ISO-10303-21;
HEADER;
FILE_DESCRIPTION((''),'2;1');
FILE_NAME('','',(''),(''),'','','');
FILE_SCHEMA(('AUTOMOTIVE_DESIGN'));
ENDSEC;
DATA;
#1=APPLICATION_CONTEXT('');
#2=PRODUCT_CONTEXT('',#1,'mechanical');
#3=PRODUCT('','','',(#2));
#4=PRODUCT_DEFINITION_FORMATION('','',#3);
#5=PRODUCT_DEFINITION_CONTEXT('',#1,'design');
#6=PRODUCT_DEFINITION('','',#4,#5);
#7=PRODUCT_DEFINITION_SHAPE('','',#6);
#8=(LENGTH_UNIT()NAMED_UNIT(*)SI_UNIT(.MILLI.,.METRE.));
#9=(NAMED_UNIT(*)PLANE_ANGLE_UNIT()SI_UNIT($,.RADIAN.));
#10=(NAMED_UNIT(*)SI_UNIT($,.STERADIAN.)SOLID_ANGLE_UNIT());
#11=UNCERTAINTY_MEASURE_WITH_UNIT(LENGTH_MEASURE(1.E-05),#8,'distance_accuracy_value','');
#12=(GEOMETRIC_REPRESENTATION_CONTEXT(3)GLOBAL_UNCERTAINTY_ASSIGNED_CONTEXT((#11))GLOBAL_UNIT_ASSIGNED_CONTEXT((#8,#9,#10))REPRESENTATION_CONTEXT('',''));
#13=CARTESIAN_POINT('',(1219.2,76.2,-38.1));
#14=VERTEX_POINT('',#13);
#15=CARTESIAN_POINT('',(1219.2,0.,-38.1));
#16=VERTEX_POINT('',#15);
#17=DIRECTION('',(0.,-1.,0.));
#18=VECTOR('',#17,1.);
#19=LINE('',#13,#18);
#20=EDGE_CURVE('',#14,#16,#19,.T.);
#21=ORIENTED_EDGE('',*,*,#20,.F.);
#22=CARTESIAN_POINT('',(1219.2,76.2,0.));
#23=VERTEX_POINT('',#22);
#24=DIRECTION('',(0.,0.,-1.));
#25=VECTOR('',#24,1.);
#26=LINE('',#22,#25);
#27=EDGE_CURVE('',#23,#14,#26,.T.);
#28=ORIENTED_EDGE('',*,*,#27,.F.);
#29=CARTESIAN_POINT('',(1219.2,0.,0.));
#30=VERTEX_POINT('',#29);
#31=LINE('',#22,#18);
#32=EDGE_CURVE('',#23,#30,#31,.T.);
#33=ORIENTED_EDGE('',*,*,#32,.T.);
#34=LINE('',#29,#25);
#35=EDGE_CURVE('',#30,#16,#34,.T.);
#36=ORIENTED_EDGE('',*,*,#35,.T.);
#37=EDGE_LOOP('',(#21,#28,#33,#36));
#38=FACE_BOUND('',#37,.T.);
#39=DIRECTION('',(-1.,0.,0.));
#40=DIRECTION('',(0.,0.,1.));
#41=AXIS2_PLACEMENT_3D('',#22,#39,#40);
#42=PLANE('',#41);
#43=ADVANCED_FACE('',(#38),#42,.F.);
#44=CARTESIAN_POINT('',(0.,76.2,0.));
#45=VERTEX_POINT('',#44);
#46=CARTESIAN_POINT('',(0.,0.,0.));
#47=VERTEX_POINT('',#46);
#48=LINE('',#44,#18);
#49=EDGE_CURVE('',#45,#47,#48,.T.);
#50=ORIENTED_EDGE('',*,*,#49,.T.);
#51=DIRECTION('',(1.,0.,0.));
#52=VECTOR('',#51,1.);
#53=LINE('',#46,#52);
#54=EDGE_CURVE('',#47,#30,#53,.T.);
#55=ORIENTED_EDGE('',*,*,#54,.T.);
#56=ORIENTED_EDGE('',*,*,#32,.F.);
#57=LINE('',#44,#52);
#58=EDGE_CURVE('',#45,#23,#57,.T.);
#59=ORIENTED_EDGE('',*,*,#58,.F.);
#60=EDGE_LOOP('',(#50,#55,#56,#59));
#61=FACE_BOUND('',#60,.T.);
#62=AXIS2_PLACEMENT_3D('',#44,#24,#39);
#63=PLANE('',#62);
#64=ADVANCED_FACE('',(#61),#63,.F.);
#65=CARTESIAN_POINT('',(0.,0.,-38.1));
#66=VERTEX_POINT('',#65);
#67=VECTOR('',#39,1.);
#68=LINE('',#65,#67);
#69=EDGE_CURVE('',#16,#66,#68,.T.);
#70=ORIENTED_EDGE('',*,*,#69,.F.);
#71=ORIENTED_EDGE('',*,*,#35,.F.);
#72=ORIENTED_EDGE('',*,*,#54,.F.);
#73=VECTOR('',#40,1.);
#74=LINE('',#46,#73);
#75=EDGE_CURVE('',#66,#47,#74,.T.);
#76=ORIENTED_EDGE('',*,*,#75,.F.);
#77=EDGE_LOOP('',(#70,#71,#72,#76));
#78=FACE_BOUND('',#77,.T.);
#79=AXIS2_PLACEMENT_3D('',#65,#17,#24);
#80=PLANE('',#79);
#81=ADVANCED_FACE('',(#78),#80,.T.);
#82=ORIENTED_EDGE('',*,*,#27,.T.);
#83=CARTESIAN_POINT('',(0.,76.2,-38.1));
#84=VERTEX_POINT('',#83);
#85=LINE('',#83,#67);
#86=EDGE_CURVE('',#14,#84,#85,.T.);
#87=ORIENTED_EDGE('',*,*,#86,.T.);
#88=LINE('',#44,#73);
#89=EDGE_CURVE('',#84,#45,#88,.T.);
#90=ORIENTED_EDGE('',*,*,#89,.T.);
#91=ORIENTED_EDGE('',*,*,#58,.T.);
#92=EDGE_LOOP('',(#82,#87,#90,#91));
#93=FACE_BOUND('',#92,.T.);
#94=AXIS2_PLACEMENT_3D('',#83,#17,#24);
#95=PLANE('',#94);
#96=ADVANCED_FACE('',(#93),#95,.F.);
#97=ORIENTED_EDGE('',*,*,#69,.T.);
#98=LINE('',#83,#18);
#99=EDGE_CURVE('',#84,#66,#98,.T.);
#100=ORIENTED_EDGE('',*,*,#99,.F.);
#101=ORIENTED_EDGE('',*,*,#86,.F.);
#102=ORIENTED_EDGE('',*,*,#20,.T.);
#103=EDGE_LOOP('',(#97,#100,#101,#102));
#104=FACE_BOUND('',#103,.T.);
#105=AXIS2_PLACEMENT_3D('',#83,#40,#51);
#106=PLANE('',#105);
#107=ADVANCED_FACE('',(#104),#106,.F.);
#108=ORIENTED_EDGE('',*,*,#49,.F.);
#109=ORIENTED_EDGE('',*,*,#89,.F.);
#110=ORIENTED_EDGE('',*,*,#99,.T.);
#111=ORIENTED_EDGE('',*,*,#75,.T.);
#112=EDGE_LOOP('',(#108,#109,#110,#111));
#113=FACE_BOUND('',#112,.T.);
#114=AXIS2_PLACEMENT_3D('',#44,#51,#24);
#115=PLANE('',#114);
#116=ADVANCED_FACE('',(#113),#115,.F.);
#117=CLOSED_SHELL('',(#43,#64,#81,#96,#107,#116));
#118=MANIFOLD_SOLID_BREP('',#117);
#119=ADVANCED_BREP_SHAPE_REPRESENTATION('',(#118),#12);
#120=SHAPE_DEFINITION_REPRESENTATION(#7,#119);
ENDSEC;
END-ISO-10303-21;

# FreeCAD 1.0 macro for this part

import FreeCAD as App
import Part
import Sketcher

V = App.Vector
Q = App.Units.Quantity

doc = App.newDocument("Part")
body = doc.addObject("PartDesign::Body", "Body")

sketch1 = body.newObject("Sketcher::SketchObject", "Sketch")
sketch1.AttachmentSupport = (doc.getObject("XZ_Plane"), [""])
sketch1.MapMode = "FlatFace"
sketch1.addGeometry([
    Part.LineSegment(V(0, -38, 0), V(0, 0, 0)),
    Part.LineSegment(V(0, 0, 0), V(1219, 0, 0)),
    Part.LineSegment(V(1219, 0, 0), V(1219, -38, 0)),
    Part.LineSegment(V(1219, -38, 0), V(0, -38, 0)),
], False)
sketch1.addConstraint([
    Sketcher.Constraint("Coincident", 0, 2, 1, 1),
    Sketcher.Constraint("Coincident", 1, 2, 2, 1),
    Sketcher.Constraint("Coincident", 2, 2, 3, 1),
    Sketcher.Constraint("Coincident", 3, 2, 0, 1),
    Sketcher.Constraint("Vertical", 0),
    Sketcher.Constraint("Horizontal", 1),
    Sketcher.Constraint("Vertical", 2),
    Sketcher.Constraint("Horizontal", 3),
    Sketcher.Constraint("Coincident", 0, 2, -1, 1),
    Sketcher.Constraint("DistanceX", 1, 1, 1, 2, Q("48 in")),
    Sketcher.Constraint("DistanceY", 0, 1, 0, 2, Q("1.5 in")),
])
pad1 = body.newObject("PartDesign::Pad", "Pad")
pad1.Profile = sketch1
pad1.Length = Q("3 in")
pad1.Reversed = True

doc.recompute()
